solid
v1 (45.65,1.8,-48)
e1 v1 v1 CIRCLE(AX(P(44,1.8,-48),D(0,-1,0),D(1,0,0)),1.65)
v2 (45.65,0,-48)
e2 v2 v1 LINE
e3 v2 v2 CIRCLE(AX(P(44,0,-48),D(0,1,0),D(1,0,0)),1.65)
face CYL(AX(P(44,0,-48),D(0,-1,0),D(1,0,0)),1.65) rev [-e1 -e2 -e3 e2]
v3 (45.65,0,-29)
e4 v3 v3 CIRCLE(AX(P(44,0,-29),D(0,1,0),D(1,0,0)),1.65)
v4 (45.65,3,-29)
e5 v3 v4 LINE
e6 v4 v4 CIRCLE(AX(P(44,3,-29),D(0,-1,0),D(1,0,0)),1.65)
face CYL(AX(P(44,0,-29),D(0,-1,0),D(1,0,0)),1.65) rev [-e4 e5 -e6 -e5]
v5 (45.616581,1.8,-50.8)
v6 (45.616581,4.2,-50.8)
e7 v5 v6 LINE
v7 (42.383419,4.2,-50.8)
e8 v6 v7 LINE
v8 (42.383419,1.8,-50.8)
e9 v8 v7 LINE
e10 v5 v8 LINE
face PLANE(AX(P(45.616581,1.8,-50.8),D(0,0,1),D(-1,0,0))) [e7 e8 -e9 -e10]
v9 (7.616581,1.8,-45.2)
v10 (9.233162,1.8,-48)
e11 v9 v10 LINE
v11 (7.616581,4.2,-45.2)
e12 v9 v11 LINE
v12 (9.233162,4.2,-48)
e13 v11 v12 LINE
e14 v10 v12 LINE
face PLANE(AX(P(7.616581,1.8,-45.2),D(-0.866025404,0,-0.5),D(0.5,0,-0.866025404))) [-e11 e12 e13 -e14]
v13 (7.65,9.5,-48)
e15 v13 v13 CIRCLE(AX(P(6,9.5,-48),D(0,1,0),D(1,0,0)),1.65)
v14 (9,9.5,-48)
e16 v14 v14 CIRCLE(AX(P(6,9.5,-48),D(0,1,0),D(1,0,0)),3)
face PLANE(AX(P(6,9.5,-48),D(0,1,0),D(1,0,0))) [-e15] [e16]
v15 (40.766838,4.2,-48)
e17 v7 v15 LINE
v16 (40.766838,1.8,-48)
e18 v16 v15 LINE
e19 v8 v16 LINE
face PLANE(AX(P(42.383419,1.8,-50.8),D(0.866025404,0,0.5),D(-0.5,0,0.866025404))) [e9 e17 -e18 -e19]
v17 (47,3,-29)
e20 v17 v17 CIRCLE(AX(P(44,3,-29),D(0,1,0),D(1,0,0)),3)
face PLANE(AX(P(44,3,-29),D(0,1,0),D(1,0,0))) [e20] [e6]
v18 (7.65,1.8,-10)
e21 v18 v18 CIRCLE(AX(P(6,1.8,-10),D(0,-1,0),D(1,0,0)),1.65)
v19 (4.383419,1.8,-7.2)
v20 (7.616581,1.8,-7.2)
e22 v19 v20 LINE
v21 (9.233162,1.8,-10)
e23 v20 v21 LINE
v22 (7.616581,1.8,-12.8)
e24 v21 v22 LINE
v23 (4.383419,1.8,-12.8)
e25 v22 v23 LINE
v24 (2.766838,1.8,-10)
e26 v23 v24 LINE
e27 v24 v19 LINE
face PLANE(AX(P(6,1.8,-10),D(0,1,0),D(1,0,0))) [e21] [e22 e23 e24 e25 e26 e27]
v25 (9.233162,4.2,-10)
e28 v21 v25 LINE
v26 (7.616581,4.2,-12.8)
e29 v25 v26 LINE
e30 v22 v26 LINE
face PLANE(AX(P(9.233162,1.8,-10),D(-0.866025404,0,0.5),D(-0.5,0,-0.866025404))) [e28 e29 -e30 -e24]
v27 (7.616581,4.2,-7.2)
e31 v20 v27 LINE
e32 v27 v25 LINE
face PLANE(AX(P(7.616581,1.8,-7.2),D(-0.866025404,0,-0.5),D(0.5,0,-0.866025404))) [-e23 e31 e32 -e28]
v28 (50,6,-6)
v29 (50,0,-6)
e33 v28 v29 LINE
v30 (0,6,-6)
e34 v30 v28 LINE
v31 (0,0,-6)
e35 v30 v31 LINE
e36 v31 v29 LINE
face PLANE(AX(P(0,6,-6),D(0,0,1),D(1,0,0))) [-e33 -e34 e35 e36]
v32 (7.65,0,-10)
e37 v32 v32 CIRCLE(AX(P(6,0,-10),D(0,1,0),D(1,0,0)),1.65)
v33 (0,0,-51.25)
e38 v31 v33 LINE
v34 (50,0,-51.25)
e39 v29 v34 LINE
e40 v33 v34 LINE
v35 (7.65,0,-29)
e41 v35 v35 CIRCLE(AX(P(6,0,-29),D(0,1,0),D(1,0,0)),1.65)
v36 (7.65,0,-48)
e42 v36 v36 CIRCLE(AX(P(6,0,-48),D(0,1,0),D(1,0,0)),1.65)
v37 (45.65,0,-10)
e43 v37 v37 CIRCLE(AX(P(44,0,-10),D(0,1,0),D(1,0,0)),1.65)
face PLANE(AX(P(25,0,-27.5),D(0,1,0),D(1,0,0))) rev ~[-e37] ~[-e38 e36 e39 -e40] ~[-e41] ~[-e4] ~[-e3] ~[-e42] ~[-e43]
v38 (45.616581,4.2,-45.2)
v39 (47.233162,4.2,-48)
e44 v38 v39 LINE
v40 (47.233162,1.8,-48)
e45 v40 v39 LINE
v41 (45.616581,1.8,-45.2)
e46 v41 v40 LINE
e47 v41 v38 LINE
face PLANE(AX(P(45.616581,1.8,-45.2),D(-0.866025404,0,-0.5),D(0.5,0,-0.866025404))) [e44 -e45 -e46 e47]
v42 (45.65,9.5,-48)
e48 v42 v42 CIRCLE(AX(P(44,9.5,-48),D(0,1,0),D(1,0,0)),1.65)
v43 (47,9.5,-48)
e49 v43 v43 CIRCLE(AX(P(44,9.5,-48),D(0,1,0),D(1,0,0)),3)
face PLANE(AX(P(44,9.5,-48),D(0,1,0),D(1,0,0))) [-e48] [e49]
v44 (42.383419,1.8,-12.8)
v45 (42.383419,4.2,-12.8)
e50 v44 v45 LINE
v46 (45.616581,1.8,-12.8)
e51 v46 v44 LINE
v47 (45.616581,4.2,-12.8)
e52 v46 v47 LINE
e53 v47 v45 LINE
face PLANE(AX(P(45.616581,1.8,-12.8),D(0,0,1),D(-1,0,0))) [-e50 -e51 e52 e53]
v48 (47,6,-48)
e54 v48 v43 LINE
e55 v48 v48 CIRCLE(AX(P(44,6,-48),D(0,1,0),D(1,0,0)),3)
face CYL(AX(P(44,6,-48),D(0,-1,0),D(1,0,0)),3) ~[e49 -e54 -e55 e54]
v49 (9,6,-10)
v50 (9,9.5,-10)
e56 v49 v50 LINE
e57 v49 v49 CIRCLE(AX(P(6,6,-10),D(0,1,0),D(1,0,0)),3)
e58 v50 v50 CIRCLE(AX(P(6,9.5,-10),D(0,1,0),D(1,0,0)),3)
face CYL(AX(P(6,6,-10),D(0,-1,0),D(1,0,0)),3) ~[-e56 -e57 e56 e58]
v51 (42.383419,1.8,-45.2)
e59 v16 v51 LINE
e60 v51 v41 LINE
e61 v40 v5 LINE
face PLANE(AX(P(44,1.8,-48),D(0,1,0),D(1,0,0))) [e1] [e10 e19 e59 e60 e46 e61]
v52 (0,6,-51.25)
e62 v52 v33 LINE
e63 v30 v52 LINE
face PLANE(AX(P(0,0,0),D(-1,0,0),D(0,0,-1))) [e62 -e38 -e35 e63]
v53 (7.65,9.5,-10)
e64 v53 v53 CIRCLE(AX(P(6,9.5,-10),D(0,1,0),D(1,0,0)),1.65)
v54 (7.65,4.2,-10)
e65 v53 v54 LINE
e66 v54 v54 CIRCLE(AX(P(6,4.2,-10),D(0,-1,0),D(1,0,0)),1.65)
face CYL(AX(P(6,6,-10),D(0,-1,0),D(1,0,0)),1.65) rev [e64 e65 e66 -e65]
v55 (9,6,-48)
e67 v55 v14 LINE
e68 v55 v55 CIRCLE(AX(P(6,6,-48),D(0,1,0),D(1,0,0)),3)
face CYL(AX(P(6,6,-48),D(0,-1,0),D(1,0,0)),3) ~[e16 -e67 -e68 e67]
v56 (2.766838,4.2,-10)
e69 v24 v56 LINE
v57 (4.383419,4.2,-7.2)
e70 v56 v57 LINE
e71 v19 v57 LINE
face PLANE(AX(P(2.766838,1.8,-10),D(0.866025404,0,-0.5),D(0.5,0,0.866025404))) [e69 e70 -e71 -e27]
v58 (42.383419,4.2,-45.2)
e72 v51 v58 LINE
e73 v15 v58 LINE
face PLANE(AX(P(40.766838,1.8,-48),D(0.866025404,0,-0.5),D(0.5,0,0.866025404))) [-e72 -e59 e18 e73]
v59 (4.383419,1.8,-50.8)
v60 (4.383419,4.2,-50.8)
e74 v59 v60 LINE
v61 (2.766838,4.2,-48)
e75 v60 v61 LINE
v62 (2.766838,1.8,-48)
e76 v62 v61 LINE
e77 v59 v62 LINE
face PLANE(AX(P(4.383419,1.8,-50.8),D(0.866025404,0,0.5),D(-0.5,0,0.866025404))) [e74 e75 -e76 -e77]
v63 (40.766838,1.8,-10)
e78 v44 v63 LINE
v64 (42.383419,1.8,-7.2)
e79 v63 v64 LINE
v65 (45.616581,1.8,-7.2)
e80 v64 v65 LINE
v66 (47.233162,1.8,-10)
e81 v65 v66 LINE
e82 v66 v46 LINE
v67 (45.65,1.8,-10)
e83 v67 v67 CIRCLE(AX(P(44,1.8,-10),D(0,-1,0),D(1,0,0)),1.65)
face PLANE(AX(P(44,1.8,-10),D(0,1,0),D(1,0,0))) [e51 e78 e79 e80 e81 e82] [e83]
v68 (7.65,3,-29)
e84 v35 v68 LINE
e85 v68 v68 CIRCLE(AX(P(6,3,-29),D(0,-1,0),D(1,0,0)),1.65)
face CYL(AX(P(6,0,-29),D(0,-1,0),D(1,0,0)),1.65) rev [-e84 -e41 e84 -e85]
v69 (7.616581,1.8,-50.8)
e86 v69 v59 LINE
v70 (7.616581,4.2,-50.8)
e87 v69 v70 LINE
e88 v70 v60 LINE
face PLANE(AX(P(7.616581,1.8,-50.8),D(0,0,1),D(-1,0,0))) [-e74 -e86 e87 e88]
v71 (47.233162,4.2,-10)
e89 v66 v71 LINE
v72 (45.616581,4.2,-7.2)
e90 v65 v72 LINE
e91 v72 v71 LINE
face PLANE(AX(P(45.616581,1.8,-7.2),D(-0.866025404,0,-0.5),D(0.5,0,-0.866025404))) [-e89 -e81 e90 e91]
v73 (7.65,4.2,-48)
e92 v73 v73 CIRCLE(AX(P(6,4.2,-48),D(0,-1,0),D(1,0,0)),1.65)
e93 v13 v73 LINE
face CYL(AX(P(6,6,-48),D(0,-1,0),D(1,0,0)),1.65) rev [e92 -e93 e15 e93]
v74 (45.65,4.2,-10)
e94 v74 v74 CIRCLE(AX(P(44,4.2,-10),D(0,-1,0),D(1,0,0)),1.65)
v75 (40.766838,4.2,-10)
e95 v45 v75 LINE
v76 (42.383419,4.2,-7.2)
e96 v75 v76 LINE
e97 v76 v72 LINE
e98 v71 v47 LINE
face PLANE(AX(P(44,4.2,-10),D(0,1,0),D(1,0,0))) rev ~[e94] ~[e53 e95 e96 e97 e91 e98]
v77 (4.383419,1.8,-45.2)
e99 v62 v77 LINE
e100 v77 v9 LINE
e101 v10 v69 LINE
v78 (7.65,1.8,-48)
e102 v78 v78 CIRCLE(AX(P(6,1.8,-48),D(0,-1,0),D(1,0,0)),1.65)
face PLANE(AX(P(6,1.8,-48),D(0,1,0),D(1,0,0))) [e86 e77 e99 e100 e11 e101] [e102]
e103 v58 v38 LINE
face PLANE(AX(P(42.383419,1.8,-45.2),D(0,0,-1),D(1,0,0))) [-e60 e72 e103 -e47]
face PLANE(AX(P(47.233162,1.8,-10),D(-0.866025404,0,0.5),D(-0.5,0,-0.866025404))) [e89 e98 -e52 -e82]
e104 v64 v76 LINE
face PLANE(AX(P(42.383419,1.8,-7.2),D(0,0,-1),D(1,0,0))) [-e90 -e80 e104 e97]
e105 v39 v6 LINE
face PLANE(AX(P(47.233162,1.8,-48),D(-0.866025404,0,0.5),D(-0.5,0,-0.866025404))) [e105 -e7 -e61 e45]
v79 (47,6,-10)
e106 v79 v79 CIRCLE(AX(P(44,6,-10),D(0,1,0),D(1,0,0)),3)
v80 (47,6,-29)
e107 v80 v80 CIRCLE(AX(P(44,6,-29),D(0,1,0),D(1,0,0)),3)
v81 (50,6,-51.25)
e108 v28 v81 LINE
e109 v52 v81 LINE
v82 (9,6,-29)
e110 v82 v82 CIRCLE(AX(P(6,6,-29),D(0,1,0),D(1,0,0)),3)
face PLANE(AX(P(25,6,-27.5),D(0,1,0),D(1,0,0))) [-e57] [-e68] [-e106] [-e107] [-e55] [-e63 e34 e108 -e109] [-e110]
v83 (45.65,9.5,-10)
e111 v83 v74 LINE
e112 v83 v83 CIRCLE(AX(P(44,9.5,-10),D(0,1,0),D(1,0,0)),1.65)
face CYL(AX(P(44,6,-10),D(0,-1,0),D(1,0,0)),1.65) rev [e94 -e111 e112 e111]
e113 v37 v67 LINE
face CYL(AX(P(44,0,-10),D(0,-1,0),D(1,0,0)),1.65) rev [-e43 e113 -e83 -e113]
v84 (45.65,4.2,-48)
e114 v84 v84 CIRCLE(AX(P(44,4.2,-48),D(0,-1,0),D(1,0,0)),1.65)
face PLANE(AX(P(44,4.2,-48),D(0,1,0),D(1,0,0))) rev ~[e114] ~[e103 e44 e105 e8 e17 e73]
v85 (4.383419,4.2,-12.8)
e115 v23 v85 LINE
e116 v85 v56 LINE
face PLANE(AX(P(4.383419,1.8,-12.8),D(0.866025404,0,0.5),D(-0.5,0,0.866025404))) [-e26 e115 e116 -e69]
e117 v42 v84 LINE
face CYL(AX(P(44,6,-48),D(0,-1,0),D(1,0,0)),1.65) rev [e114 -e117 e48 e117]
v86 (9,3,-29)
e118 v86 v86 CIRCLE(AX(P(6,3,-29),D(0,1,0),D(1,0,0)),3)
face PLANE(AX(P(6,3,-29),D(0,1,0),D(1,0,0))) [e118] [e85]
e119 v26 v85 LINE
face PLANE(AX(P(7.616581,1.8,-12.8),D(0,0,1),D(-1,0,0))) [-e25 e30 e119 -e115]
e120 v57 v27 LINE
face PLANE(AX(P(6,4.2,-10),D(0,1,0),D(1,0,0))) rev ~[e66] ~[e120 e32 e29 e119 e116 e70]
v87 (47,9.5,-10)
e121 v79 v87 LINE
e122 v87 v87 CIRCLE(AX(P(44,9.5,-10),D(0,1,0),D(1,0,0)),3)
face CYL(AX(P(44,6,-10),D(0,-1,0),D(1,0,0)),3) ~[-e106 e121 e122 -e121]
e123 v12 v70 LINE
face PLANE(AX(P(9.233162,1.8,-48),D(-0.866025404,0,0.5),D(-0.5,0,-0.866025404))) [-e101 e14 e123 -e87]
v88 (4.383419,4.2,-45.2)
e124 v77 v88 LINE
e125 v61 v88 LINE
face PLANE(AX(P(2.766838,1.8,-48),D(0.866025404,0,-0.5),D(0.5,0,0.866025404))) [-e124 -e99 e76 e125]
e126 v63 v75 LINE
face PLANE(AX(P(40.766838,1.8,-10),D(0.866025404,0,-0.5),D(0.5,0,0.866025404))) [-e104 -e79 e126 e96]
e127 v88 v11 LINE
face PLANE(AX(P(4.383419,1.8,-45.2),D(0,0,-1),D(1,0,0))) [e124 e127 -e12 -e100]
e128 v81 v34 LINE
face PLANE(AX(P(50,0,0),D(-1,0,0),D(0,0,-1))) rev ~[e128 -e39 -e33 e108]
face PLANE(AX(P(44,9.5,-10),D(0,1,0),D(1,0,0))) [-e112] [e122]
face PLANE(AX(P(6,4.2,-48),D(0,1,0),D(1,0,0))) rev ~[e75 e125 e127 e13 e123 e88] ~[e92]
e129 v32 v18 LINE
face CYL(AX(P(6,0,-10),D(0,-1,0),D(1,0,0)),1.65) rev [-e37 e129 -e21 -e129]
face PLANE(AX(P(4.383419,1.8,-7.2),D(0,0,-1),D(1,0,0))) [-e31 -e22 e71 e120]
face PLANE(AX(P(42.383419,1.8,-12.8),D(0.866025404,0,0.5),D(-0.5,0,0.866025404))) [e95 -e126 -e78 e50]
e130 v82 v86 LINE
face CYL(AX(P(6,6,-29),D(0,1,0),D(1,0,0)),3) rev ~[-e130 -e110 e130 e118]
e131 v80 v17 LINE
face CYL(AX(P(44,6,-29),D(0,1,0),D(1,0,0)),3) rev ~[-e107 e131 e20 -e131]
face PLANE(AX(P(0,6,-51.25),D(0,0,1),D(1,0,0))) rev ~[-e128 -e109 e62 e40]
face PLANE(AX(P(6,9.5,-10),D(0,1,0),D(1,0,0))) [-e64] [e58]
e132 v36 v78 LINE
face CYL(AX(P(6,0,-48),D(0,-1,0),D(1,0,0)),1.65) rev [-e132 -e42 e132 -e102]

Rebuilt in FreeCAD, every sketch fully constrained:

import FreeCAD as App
import Part
import Sketcher
from FreeCAD import Vector
Q = App.Units.Quantity


def add_polygon(sketch, points):
    """Adds a closed chain of lines whose ends are joined by coincident constraints."""
    first, n = sketch.GeometryCount, len(points)
    for a, b in zip(points, points[1:] + points[:1]):
        sketch.addGeometry(Part.LineSegment(App.Vector(*a, 0), App.Vector(*b, 0)), False)
    for i in range(n):
        sketch.addConstraint(Sketcher.Constraint("Coincident", first + i, 2, first + (i + 1) % n, 1))

doc = App.newDocument("Part")
body = doc.addObject("PartDesign::Body", "Body")

# Sketch on XZ plane
sketch1 = body.newObject("Sketcher::SketchObject", "Sketch")
sketch1.AttachmentSupport = (doc.getObject("XZ_Plane"), [""])
sketch1.MapMode = "FlatFace"
add_polygon(sketch1, [(0, -55), (0, 0), (50, 0), (50, -55)])  # lines 0-3
sketch1.addGeometry(Part.Circle(Vector(6, -10, 0), Vector(0, 0, 1), 1.6), False)  # 4
sketch1.addGeometry(Part.Circle(Vector(44, -10, 0), Vector(0, 0, 1), 1.6), False)  # 5
sketch1.addGeometry(Part.Circle(Vector(6, -29, 0), Vector(0, 0, 1), 1.6), False)  # 6
sketch1.addGeometry(Part.Circle(Vector(6, -48, 0), Vector(0, 0, 1), 1.6), False)  # 7
sketch1.addGeometry(Part.Circle(Vector(44, -29, 0), Vector(0, 0, 1), 1.6), False)  # 8
sketch1.addGeometry(Part.Circle(Vector(44, -48, 0), Vector(0, 0, 1), 1.6), False)  # 9
sketch1.addConstraint([
    Sketcher.Constraint("Vertical", 0),
    Sketcher.Constraint("Horizontal", 1),
    Sketcher.Constraint("Vertical", 2),
    Sketcher.Constraint("Horizontal", 3),
    Sketcher.Constraint("Coincident", 0, 2, -1, 1),
    Sketcher.Constraint("Equal", 4, 5),
    Sketcher.Constraint("Equal", 5, 6),
    Sketcher.Constraint("Equal", 6, 7),
    Sketcher.Constraint("Equal", 7, 8),
    Sketcher.Constraint("Equal", 8, 9),
    Sketcher.Constraint("Horizontal", 4, 3, 5, 3),
    Sketcher.Constraint("Horizontal", 6, 3, 8, 3),
    Sketcher.Constraint("Horizontal", 7, 3, 9, 3),
    Sketcher.Constraint("Vertical", 4, 3, 6, 3),
    Sketcher.Constraint("Vertical", 6, 3, 7, 3),
    Sketcher.Constraint("Vertical", 5, 3, 8, 3),
    Sketcher.Constraint("Vertical", 8, 3, 9, 3),
    Sketcher.Constraint("Diameter", 4, 3.3),
    Sketcher.Constraint("DistanceX", 1, 1, 1, 2, 50.0),
    Sketcher.Constraint("DistanceY", 0, 1, 0, 2, 55.0),
    Sketcher.Constraint("DistanceX", -1, 1, 4, 3, 6.0),
    Sketcher.Constraint("DistanceY", 4, 3, -1, 1, 10.0),
    Sketcher.Constraint("DistanceX", -1, 1, 5, 3, 44.0),
    Sketcher.Constraint("DistanceY", 6, 3, -1, 1, 29.0),
    Sketcher.Constraint("DistanceY", 7, 3, -1, 1, 48.0),
])
pad1 = body.newObject("PartDesign::Pad", "Pad")
pad1.Profile = sketch1
pad1.Length = 6
pad1.Reversed = True

# Sketch on XZ plane
sketch2 = body.newObject("Sketcher::SketchObject", "Sketch001")
sketch2.AttachmentSupport = (doc.getObject("XZ_Plane"), [""])
sketch2.MapMode = "FlatFace"
sketch2.AttachmentOffset = App.Placement(Vector(0, 0, -1.8), App.Rotation())
add_polygon(sketch2, [(9.2, -48), (7.6, -50.8), (4.4, -50.8), (2.8, -48), (4.4, -45.2), (7.6, -45.2)])  # lines 0-5
add_polygon(sketch2, [(47.2, -48), (45.6, -50.8), (42.4, -50.8), (40.8, -48), (42.4, -45.2), (45.6, -45.2)])  # lines 6-11
add_polygon(sketch2, [(47.2, -10), (45.6, -12.8), (42.4, -12.8), (40.8, -10), (42.4, -7.2), (45.6, -7.2)])  # lines 12-17
add_polygon(sketch2, [(9.2, -10), (7.6, -12.8), (4.4, -12.8), (2.8, -10), (4.4, -7.2), (7.6, -7.2)])  # lines 18-23
sketch2.addConstraint([
    Sketcher.Constraint("Horizontal", 1),
    Sketcher.Constraint("Horizontal", 4),
    Sketcher.Constraint("Horizontal", 7),
    Sketcher.Constraint("Horizontal", 10),
    Sketcher.Constraint("Horizontal", 13),
    Sketcher.Constraint("Horizontal", 16),
    Sketcher.Constraint("Horizontal", 19),
    Sketcher.Constraint("Horizontal", 22),
    Sketcher.Constraint("Parallel", 0, 3),
    Sketcher.Constraint("Parallel", 2, 5),
    Sketcher.Constraint("Parallel", 3, 6),
    Sketcher.Constraint("Parallel", 5, 8),
    Sketcher.Constraint("Parallel", 6, 9),
    Sketcher.Constraint("Parallel", 8, 11),
    Sketcher.Constraint("Parallel", 9, 12),
    Sketcher.Constraint("Parallel", 11, 14),
    Sketcher.Constraint("Parallel", 12, 15),
    Sketcher.Constraint("Parallel", 14, 17),
    Sketcher.Constraint("Parallel", 15, 18),
    Sketcher.Constraint("Parallel", 17, 20),
    Sketcher.Constraint("Parallel", 18, 21),
    Sketcher.Constraint("Parallel", 20, 23),
    Sketcher.Constraint("Horizontal", 2, 2, 5, 2),
    Sketcher.Constraint("Horizontal", 1, 2, 6, 2),
    Sketcher.Constraint("Horizontal", 5, 2, 8, 2),
    Sketcher.Constraint("Horizontal", 4, 2, 9, 2),
    Sketcher.Constraint("Horizontal", 8, 2, 11, 2),
    Sketcher.Constraint("Horizontal", 14, 2, 17, 2),
    Sketcher.Constraint("Horizontal", 13, 2, 18, 2),
    Sketcher.Constraint("Horizontal", 17, 2, 20, 2),
    Sketcher.Constraint("Horizontal", 16, 2, 21, 2),
    Sketcher.Constraint("Horizontal", 20, 2, 23, 2),
    Sketcher.Constraint("Vertical", 1, 2, 3, 2),
    Sketcher.Constraint("Vertical", 0, 2, 4, 2),
    Sketcher.Constraint("Vertical", 10, 2, 12, 2),
    Sketcher.Constraint("Vertical", 9, 2, 13, 2),
    Sketcher.Constraint("Vertical", 8, 2, 14, 2),
    Sketcher.Constraint("Vertical", 13, 2, 15, 2),
    Sketcher.Constraint("Vertical", 4, 2, 18, 2),
    Sketcher.Constraint("Vertical", 3, 2, 19, 2),
    Sketcher.Constraint("Equal", 4, 7),
    Sketcher.Constraint("Angle", 0, Q("-120 deg")),
    Sketcher.Constraint("DistanceY", 2, 2, -1, 1, 48.0),
    Sketcher.Constraint("DistanceY", 14, 2, -1, 1, 10.0),
    Sketcher.Constraint("DistanceX", 0, 2, 6, 2, 38.0),
    Sketcher.Constraint("DistanceY", 0, 2, -1, 1, 50.8),
    Sketcher.Constraint("DistanceX", 1, 2, 1, 1, 3.233162),
    Sketcher.Constraint("DistanceX", -1, 1, 0, 2, 7.616581),
])
pocket1 = body.newObject("PartDesign::Pocket", "Pocket")
pocket1.Profile = sketch2
pocket1.Length = 2.4

# Sketch on XZ plane
sketch3 = body.newObject("Sketcher::SketchObject", "Sketch002")
sketch3.AttachmentSupport = (doc.getObject("XZ_Plane"), [""])
sketch3.MapMode = "FlatFace"
sketch3.AttachmentOffset = App.Placement(Vector(0, 0, -6), App.Rotation())
sketch3.addGeometry([
    Part.Circle(Vector(6, -10, 0), Vector(0, 0, 1), 3),  # 0
    Part.Circle(Vector(6, -10, 0), Vector(0, 0, 1), 1.6),  # 1
    Part.Circle(Vector(44, -10, 0), Vector(0, 0, 1), 3),  # 2
    Part.Circle(Vector(44, -10, 0), Vector(0, 0, 1), 1.6),  # 3
    Part.Circle(Vector(6, -48, 0), Vector(0, 0, 1), 3),  # 4
    Part.Circle(Vector(6, -48, 0), Vector(0, 0, 1), 1.6),  # 5
    Part.Circle(Vector(44, -48, 0), Vector(0, 0, 1), 3),  # 6
    Part.Circle(Vector(44, -48, 0), Vector(0, 0, 1), 1.6),  # 7
], False)
sketch3.addConstraint([
    Sketcher.Constraint("Coincident", 1, 3, 0, 3),
    Sketcher.Constraint("Coincident", 3, 3, 2, 3),
    Sketcher.Constraint("Coincident", 5, 3, 4, 3),
    Sketcher.Constraint("Coincident", 7, 3, 6, 3),
    Sketcher.Constraint("Equal", 0, 2),
    Sketcher.Constraint("Equal", 1, 3),
    Sketcher.Constraint("Equal", 2, 4),
    Sketcher.Constraint("Equal", 3, 5),
    Sketcher.Constraint("Equal", 4, 6),
    Sketcher.Constraint("Equal", 5, 7),
    Sketcher.Constraint("Horizontal", 1, 3, 2, 3),
    Sketcher.Constraint("Horizontal", 5, 3, 6, 3),
    Sketcher.Constraint("Vertical", 1, 3, 4, 3),
    Sketcher.Constraint("Vertical", 3, 3, 6, 3),
    Sketcher.Constraint("Diameter", 0, 6.0),
    Sketcher.Constraint("Diameter", 1, 3.3),
    Sketcher.Constraint("DistanceX", -1, 1, 0, 3, 6.0),
    Sketcher.Constraint("DistanceY", 0, 3, -1, 1, 10.0),
    Sketcher.Constraint("DistanceX", -1, 1, 2, 3, 44.0),
    Sketcher.Constraint("DistanceY", 4, 3, -1, 1, 48.0),
])
pad2 = body.newObject("PartDesign::Pad", "Pad001")
pad2.Profile = sketch3
pad2.Length = 3.5
pad2.Reversed = True

# Sketch on XZ plane
sketch4 = body.newObject("Sketcher::SketchObject", "Sketch003")
sketch4.AttachmentSupport = (doc.getObject("XZ_Plane"), [""])
sketch4.MapMode = "FlatFace"
sketch4.AttachmentOffset = App.Placement(Vector(0, 0, -6), App.Rotation())
sketch4.addGeometry([
    Part.Circle(Vector(6, -29, 0), Vector(0, 0, 1), 3),
    Part.Circle(Vector(44, -29, 0), Vector(0, 0, 1), 3),
], False)
sketch4.addConstraint([
    Sketcher.Constraint("Equal", 0, 1),
    Sketcher.Constraint("Horizontal", 0, 3, 1, 3),
    Sketcher.Constraint("Diameter", 0, 6.0),
    Sketcher.Constraint("DistanceX", -1, 1, 0, 3, 6.0),
    Sketcher.Constraint("DistanceY", 0, 3, -1, 1, 29.0),
    Sketcher.Constraint("DistanceX", -1, 1, 1, 3, 44.0),
])
pocket2 = body.newObject("PartDesign::Pocket", "Pocket001")
pocket2.Profile = sketch4
pocket2.Length = 3
pocket2.Reversed = True

# Sketch on XZ plane
sketch5 = body.newObject("Sketcher::SketchObject", "Sketch004")
sketch5.AttachmentSupport = (doc.getObject("XZ_Plane"), [""])
sketch5.MapMode = "FlatFace"
sketch5.AttachmentOffset = App.Placement(Vector(0, 0, -6), App.Rotation())
add_polygon(sketch5, [(0, -55), (0, -51.2), (50, -51.2), (50, -55)])  # lines 0-3
add_polygon(sketch5, [(0, -6), (0, 0), (50, 0), (50, -6)])  # lines 4-7
sketch5.addConstraint([
    Sketcher.Constraint("Vertical", 0),
    Sketcher.Constraint("Horizontal", 1),
    Sketcher.Constraint("Vertical", 2),
    Sketcher.Constraint("Horizontal", 3),
    Sketcher.Constraint("Vertical", 4),
    Sketcher.Constraint("Horizontal", 5),
    Sketcher.Constraint("Vertical", 6),
    Sketcher.Constraint("Horizontal", 7),
    Sketcher.Constraint("Coincident", 4, 2, -1, 1),
    Sketcher.Constraint("PointOnObject", 0, 2, -2),
    Sketcher.Constraint("Vertical", 2, 2, 5, 2),
    Sketcher.Constraint("DistanceX", 1, 1, 1, 2, 50.0),
    Sketcher.Constraint("DistanceY", 4, 1, 4, 2, 6.0),
    Sketcher.Constraint("DistanceY", 2, 2, -1, 1, 55.0),
    Sketcher.Constraint("DistanceY", 0, 1, 0, 2, 3.75),
])
pocket3 = body.newObject("PartDesign::Pocket", "Pocket002")
pocket3.Profile = sketch5
pocket3.Length = 10
pocket3.Reversed = True

doc.recompute()
